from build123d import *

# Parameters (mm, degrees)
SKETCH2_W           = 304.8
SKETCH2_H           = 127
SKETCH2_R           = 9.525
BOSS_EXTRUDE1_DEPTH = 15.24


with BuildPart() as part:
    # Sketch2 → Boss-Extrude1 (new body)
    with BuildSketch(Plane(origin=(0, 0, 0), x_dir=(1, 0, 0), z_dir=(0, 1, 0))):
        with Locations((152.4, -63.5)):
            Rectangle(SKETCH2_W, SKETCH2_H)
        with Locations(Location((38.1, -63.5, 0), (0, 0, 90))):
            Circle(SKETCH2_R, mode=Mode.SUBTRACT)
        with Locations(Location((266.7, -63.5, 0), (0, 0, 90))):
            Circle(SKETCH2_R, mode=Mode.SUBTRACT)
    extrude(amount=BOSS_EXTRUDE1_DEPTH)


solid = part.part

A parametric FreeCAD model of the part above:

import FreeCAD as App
import Part
import Sketcher
Q = App.Units.Quantity


def add_polygon(sketch, points):
    """Adds a closed chain of lines whose ends are joined by coincident constraints."""
    first, n = sketch.GeometryCount, len(points)
    for a, b in zip(points, points[1:] + points[:1]):
        sketch.addGeometry(Part.LineSegment(App.Vector(*a, 0), App.Vector(*b, 0)), False)
    for i in range(n):
        sketch.addConstraint(Sketcher.Constraint("Coincident", first + i, 2, first + (i + 1) % n, 1))

doc = App.newDocument("Part")
body = doc.addObject("PartDesign::Body", "Body")

sketch1 = doc.addObject("Sketcher::SketchObject", "Sketch")
body.addObject(sketch1)
sketch1.AttachmentSupport = (doc.XZ_Plane, [""])
sketch1.MapMode = "FlatFace"
add_polygon(sketch1, [(0, 0), (0, 127), (305, 127), (305, 0)])
sketch1.addGeometry(Part.Circle(App.Vector(38, 64, 0), App.Vector(0, 0, 1), 10), False)
sketch1.addGeometry(Part.Circle(App.Vector(267, 64, 0), App.Vector(0, 0, 1), 10), False)
sketch1.addConstraint(Sketcher.Constraint("Vertical", 0))
sketch1.addConstraint(Sketcher.Constraint("Horizontal", 1))
sketch1.addConstraint(Sketcher.Constraint("Vertical", 2))
sketch1.addConstraint(Sketcher.Constraint("Horizontal", 3))
sketch1.addConstraint(Sketcher.Constraint("Coincident", 3, 2, -1, 1))
sketch1.addConstraint(Sketcher.Constraint("Equal", 4, 5))
sketch1.addConstraint(Sketcher.Constraint("Horizontal", 4, 3, 5, 3))
sketch1.addConstraint(Sketcher.Constraint("Diameter", 4, Q("0.75 in")))
sketch1.addConstraint(Sketcher.Constraint("DistanceX", 1, 1, 1, 2, Q("12 in")))
sketch1.addConstraint(Sketcher.Constraint("DistanceY", 0, 1, 0, 2, Q("5 in")))
sketch1.addConstraint(Sketcher.Constraint("DistanceX", 4, 3, 5, 3, Q("9 in")))
sketch1.addConstraint(Sketcher.Constraint("DistanceX", -1, 1, 4, 3, Q("1.5 in")))
sketch1.addConstraint(Sketcher.Constraint("DistanceY", -1, 1, 4, 3, Q("2.5 in")))
pad1 = doc.addObject("PartDesign::Pad", "Pad")
body.addObject(pad1)
pad1.Profile = sketch1
pad1.Length = Q("0.6 in")
pad1.Reversed = True

doc.recompute()
